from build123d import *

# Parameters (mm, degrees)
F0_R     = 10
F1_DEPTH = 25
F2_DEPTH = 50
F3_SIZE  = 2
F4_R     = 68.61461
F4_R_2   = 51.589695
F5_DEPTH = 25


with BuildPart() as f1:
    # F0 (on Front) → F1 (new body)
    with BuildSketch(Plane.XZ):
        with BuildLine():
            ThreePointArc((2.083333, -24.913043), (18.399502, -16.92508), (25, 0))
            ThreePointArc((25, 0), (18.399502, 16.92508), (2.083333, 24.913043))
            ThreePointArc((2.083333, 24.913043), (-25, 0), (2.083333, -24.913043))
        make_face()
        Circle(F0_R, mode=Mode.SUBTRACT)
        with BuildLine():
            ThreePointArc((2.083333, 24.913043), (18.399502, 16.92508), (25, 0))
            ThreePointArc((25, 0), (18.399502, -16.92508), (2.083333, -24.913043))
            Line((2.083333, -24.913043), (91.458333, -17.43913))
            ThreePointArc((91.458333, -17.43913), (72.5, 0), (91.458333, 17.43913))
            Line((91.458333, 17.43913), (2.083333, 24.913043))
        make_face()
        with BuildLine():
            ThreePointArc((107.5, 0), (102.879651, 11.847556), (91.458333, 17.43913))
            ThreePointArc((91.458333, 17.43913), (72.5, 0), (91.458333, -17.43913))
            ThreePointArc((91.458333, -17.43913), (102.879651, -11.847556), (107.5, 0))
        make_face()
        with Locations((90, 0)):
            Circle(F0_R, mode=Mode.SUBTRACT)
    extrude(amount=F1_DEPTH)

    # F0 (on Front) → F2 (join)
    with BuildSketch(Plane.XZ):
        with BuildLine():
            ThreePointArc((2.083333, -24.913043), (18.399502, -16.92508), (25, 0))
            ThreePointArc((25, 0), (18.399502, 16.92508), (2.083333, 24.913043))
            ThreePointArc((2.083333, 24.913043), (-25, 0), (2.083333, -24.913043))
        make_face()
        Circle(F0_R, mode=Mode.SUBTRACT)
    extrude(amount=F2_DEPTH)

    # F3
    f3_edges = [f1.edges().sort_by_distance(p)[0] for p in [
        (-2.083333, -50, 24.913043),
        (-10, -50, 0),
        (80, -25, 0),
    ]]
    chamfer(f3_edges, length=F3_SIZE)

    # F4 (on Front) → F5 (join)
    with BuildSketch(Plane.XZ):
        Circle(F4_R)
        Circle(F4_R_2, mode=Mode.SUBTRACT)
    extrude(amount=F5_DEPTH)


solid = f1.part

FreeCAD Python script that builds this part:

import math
import FreeCAD as App
import Part
import Sketcher
Q = App.Units.Quantity


def edges_at(feature, points):
    """Names of the edges that pass closest to the given points."""
    edges = feature.Shape.Edges
    near = lambda p: min(range(len(edges)), key=lambda i: edges[i].distToShape(Part.Vertex(*p))[0])
    return sorted({f"Edge{near(p) + 1}" for p in points})

doc = App.newDocument("Part")
body = doc.addObject("PartDesign::Body", "Body")

sketch1 = doc.addObject("Sketcher::SketchObject", "Sketch")
body.addObject(sketch1)
sketch1.AttachmentSupport = (doc.XZ_Plane, [""])
sketch1.MapMode = "FlatFace"
sketch1.addGeometry(Part.ArcOfCircle(Part.Circle(App.Vector(0, 0, 0), App.Vector(0, 0, 1), 25), math.radians(85), math.radians(275)), False)
sketch1.addGeometry(Part.LineSegment(App.Vector(2, -25, 0), App.Vector(91, -17, 0)), False)
sketch1.addGeometry(Part.ArcOfCircle(Part.Circle(App.Vector(90, 0, 0), App.Vector(0, 0, 1), 18), math.radians(-85), math.radians(0)), False)
sketch1.addGeometry(Part.ArcOfCircle(Part.Circle(App.Vector(90, 0, 0), App.Vector(0, 0, 1), 18), math.radians(0), math.radians(85)), False)
sketch1.addGeometry(Part.LineSegment(App.Vector(91, 17, 0), App.Vector(2, 25, 0)), False)
sketch1.addGeometry(Part.Circle(App.Vector(0, 0, 0), App.Vector(0, 0, 1), 10), False)
sketch1.addGeometry(Part.Circle(App.Vector(90, 0, 0), App.Vector(0, 0, 1), 10), False)
sketch1.addConstraint(Sketcher.Constraint("Tangent", 0, 2, 1, 1))
sketch1.addConstraint(Sketcher.Constraint("Tangent", 1, 2, 2, 1))
sketch1.addConstraint(Sketcher.Constraint("Tangent", 2, 2, 3, 1))
sketch1.addConstraint(Sketcher.Constraint("Tangent", 3, 2, 4, 1))
sketch1.addConstraint(Sketcher.Constraint("Tangent", 4, 2, 0, 1))
sketch1.addConstraint(Sketcher.Constraint("Coincident", 0, 3, -1, 1))
sketch1.addConstraint(Sketcher.Constraint("Coincident", 5, 3, -1, 1))
sketch1.addConstraint(Sketcher.Constraint("Coincident", 6, 3, 2, 3))
sketch1.addConstraint(Sketcher.Constraint("Equal", 2, 3))
sketch1.addConstraint(Sketcher.Constraint("Equal", 5, 6))
sketch1.addConstraint(Sketcher.Constraint("PointOnObject", 2, 3, -1))
sketch1.addConstraint(Sketcher.Constraint("PointOnObject", 2, 2, -1))
sketch1.addConstraint(Sketcher.Constraint("Diameter", 5, Q("20 mm")))
sketch1.addConstraint(Sketcher.Constraint("Radius", 0, Q("25 mm")))
sketch1.addConstraint(Sketcher.Constraint("Radius", 2, Q("17.5 mm")))
sketch1.addConstraint(Sketcher.Constraint("DistanceX", -1, 1, 2, 3, Q("90 mm")))
pad1 = doc.addObject("PartDesign::Pad", "Pad")
body.addObject(pad1)
pad1.Profile = sketch1
pad1.Length = 25

sketch2 = doc.addObject("Sketcher::SketchObject", "Sketch001")
body.addObject(sketch2)
sketch2.AttachmentSupport = (doc.XZ_Plane, [""])
sketch2.MapMode = "FlatFace"
sketch2.addGeometry(Part.ArcOfCircle(Part.Circle(App.Vector(0, 0, 0), App.Vector(0, 0, 1), 25), math.radians(-85), math.radians(0)), False)
sketch2.addGeometry(Part.ArcOfCircle(Part.Circle(App.Vector(0, 0, 0), App.Vector(0, 0, 1), 25), math.radians(0), math.radians(85)), False)
sketch2.addGeometry(Part.ArcOfCircle(Part.Circle(App.Vector(0, 0, 0), App.Vector(0, 0, 1), 25), math.radians(85), math.radians(275)), False)
sketch2.addGeometry(Part.Circle(App.Vector(0, 0, 0), App.Vector(0, 0, 1), 10), False)
sketch2.addConstraint(Sketcher.Constraint("Tangent", 0, 2, 1, 1))
sketch2.addConstraint(Sketcher.Constraint("Tangent", 1, 2, 2, 1))
sketch2.addConstraint(Sketcher.Constraint("Tangent", 2, 2, 0, 1))
sketch2.addConstraint(Sketcher.Constraint("Coincident", 0, 3, -1, 1))
sketch2.addConstraint(Sketcher.Constraint("Coincident", 3, 3, -1, 1))
sketch2.addConstraint(Sketcher.Constraint("PointOnObject", 0, 2, -1))
sketch2.addConstraint(Sketcher.Constraint("Vertical", 1, 2, 2, 2))
sketch2.addConstraint(Sketcher.Constraint("Diameter", 3, Q("20 mm")))
sketch2.addConstraint(Sketcher.Constraint("Radius", 0, Q("24.999999 mm")))
sketch2.addConstraint(Sketcher.Constraint("DistanceX", -1, 1, 1, 2, Q("2.083333 mm")))
pad2 = doc.addObject("PartDesign::Pad", "Pad001")
body.addObject(pad2)
pad2.Profile = sketch2
pad2.Length = 50
doc.recompute()

chamfer = doc.addObject("PartDesign::Chamfer", "Chamfer")
body.addObject(chamfer)
chamfer.Base = (pad2, edges_at(pad2, [(-25, -50, 0), (-10, -50, 0), (80, -25, 0)]))
chamfer.Size = 2

sketch3 = doc.addObject("Sketcher::SketchObject", "Sketch002")
body.addObject(sketch3)
sketch3.AttachmentSupport = (doc.XZ_Plane, [""])
sketch3.MapMode = "FlatFace"
sketch3.addGeometry(Part.Circle(App.Vector(0, 0, 0), App.Vector(0, 0, 1), 69), False)
sketch3.addGeometry(Part.Circle(App.Vector(0, 0, 0), App.Vector(0, 0, 1), 52), False)
sketch3.addConstraint(Sketcher.Constraint("Coincident", 0, 3, -1, 1))
sketch3.addConstraint(Sketcher.Constraint("Coincident", 1, 3, -1, 1))
sketch3.addConstraint(Sketcher.Constraint("Diameter", 0, Q("137.22922 mm")))
sketch3.addConstraint(Sketcher.Constraint("Diameter", 1, Q("103.17939 mm")))
pad3 = doc.addObject("PartDesign::Pad", "Pad002")
body.addObject(pad3)
pad3.Profile = sketch3
pad3.Length = 25

doc.recompute()
